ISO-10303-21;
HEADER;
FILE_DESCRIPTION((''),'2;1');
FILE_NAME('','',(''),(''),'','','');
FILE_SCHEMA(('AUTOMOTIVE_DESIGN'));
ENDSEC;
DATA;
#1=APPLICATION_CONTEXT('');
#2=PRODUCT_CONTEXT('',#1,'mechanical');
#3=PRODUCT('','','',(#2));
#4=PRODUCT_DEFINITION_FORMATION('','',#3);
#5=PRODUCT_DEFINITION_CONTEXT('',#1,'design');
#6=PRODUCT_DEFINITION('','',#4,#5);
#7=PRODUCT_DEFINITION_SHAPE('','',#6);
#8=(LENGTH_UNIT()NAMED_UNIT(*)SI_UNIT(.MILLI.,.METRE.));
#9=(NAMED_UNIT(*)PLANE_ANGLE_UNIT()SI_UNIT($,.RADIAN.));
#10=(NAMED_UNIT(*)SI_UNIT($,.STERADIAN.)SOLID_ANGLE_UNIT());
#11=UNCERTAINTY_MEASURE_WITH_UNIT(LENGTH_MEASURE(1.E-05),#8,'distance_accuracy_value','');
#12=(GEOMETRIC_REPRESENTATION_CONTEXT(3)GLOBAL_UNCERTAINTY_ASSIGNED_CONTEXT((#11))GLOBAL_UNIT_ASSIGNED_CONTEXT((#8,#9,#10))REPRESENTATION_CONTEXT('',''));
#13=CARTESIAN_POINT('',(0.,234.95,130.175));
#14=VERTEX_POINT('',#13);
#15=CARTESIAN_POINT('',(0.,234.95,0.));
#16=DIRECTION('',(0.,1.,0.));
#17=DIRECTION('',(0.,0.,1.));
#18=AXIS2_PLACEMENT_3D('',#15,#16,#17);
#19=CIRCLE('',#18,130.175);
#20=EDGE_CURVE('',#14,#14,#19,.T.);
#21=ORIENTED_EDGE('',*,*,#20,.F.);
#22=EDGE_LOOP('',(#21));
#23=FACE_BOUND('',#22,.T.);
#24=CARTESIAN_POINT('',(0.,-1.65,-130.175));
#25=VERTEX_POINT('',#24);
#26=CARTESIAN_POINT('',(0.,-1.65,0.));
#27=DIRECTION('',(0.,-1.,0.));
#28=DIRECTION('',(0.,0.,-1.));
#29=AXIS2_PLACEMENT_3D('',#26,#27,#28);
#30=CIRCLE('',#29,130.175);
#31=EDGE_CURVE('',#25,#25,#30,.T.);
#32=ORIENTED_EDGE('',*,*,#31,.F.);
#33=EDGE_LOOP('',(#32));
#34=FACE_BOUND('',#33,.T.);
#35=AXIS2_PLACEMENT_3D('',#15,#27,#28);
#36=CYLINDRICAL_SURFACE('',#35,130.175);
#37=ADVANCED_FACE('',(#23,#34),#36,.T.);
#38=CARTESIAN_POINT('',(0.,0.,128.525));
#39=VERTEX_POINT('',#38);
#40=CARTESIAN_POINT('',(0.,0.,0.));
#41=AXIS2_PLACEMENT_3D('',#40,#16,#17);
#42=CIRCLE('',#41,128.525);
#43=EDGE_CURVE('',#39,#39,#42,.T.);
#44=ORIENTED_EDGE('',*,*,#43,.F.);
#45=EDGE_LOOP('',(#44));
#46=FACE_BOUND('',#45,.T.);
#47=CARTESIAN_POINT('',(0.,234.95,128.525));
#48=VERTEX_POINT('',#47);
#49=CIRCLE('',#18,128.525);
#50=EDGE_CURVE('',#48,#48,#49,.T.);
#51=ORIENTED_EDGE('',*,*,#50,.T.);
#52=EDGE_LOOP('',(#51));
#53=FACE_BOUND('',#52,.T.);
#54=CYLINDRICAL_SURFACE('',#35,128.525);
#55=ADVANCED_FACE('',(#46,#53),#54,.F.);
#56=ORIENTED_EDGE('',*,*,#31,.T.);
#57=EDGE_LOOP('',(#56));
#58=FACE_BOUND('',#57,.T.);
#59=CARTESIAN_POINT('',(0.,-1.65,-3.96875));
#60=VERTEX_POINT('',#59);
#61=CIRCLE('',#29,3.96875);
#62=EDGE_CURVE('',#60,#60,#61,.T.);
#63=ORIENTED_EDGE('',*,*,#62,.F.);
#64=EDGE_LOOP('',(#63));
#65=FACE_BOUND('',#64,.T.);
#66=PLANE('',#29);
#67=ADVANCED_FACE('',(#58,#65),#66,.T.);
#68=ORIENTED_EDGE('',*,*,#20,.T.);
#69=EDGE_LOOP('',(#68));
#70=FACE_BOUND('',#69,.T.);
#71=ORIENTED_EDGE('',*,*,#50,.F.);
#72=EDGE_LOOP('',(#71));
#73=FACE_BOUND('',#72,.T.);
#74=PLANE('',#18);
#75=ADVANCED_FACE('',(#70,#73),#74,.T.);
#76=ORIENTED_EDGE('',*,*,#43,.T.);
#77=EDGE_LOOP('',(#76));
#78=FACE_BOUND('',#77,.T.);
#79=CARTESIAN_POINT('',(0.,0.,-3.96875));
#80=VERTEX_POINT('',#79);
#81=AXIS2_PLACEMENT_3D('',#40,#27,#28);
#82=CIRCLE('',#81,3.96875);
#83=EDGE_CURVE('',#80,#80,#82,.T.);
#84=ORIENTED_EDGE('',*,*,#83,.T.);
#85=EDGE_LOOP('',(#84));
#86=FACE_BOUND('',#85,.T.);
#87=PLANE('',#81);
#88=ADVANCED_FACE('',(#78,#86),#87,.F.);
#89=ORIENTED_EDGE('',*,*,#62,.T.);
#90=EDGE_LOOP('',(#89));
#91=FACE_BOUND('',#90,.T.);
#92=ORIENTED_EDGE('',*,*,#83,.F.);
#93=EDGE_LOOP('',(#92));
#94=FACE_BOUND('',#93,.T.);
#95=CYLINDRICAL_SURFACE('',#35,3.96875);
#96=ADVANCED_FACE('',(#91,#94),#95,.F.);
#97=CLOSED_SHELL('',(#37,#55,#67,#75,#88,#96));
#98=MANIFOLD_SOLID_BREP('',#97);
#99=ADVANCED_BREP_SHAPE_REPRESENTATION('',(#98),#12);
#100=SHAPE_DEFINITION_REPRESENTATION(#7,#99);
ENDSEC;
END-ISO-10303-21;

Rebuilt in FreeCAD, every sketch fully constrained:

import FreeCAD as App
import Part
import Sketcher

V = App.Vector
Q = App.Units.Quantity

doc = App.newDocument("Part")
body = doc.addObject("PartDesign::Body", "Body")

sketch1 = body.newObject("Sketcher::SketchObject", "Sketch")
sketch1.AttachmentSupport = (doc.getObject("XZ_Plane"), [""])
sketch1.MapMode = "FlatFace"
sketch1.addGeometry(Part.Circle(V(0, 0, 0), V(0, 0, 1), 130), False)
sketch1.addGeometry(Part.Circle(V(0, 0, 0), V(0, 0, 1), 129), False)
sketch1.addConstraint(Sketcher.Constraint("Coincident", 0, 3, -1, 1))
sketch1.addConstraint(Sketcher.Constraint("Coincident", 1, 3, -1, 1))
sketch1.addConstraint(Sketcher.Constraint("Diameter", 0, Q("10.25 in")))
sketch1.addConstraint(Sketcher.Constraint("Diameter", 1, 257.05))
pad1 = body.newObject("PartDesign::Pad", "Pad")
pad1.Profile = sketch1
pad1.Length = Q("9.25 in")
pad1.Reversed = True

sketch2 = body.newObject("Sketcher::SketchObject", "Sketch001")
sketch2.AttachmentSupport = (doc.getObject("XZ_Plane"), [""])
sketch2.MapMode = "FlatFace"
sketch2.addGeometry(Part.Circle(V(0, 0, 0), V(0, 0, 1), 130), False)
sketch2.addConstraint(Sketcher.Constraint("Coincident", 0, 3, -1, 1))
sketch2.addConstraint(Sketcher.Constraint("Diameter", 0, Q("10.25 in")))
pad2 = body.newObject("PartDesign::Pad", "Pad001")
pad2.Profile = sketch2
pad2.Length = 1.65

sketch3 = body.newObject("Sketcher::SketchObject", "Sketch002")
sketch3.AttachmentSupport = (doc.getObject("XZ_Plane"), [""])
sketch3.MapMode = "FlatFace"
sketch3.AttachmentOffset = App.Placement(V(0, 0, 1.65), App.Rotation())
sketch3.addGeometry(Part.Circle(V(0, 0, 0), V(0, 0, 1), 4), False)
sketch3.addConstraint(Sketcher.Constraint("Coincident", 0, 3, -1, 1))
sketch3.addConstraint(Sketcher.Constraint("Diameter", 0, Q("0.3125 in")))
pocket1 = body.newObject("PartDesign::Pocket", "Pocket")
pocket1.Profile = sketch3
pocket1.Type = "ThroughAll"

doc.recompute()
